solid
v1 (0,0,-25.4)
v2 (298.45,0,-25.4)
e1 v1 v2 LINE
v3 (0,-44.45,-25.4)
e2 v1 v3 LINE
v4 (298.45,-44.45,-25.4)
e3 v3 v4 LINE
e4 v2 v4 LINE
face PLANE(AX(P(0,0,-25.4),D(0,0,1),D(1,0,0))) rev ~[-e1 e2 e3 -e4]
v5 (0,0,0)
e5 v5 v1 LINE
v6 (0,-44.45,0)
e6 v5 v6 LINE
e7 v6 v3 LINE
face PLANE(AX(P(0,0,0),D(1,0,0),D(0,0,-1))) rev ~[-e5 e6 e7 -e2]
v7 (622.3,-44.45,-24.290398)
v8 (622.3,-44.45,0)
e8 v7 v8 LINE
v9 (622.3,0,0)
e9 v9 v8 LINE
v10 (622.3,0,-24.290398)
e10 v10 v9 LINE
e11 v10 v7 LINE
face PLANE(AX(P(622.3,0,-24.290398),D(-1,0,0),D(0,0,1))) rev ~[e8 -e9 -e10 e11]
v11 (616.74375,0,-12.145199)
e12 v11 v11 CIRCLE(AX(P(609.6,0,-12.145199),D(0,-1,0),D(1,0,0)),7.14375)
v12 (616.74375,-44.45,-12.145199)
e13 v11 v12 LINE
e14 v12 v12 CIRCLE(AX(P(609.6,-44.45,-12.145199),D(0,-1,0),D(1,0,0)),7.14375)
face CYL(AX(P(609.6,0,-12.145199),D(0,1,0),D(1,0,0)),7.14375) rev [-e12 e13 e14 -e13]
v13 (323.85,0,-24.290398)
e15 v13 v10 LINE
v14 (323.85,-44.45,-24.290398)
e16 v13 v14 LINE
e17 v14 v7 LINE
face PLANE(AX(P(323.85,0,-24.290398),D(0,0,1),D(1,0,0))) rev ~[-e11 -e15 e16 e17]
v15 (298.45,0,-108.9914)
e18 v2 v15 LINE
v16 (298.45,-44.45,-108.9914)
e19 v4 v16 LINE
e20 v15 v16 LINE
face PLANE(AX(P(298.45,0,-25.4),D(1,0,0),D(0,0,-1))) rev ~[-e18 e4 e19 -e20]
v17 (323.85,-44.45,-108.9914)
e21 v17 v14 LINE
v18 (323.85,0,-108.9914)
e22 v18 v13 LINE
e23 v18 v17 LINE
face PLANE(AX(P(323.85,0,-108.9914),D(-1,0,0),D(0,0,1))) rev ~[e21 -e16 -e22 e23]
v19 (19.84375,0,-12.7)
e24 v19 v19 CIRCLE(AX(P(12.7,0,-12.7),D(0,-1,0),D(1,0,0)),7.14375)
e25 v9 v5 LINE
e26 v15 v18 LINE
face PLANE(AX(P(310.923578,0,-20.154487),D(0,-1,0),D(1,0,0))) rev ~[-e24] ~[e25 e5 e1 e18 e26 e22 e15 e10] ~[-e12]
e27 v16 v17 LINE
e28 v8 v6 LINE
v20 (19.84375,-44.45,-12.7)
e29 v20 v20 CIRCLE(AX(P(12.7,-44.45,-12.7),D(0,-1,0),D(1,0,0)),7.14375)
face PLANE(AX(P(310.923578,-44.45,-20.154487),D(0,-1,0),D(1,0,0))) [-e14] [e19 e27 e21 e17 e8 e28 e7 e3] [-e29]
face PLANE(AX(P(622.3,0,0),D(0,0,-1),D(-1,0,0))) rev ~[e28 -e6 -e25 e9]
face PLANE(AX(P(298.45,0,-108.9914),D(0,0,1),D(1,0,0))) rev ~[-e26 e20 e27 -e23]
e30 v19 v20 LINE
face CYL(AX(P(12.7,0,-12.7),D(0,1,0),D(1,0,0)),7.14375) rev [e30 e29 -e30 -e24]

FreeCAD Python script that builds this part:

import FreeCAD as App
import Part
import Sketcher
Q = App.Units.Quantity

doc = App.newDocument("Part")
params = doc.addObject("Spreadsheet::Sheet", "Params")
for row, (alias, value) in enumerate([
    ("sketch1_width", "1 in"),
    ("sketch1_diameter", "0.5625 in"),
    ("sketch1_width2", "24.5 in"),
    ("sketch1_height", "3.291 in"),
    ("pad1_length", "1.75 in"),
], start=1):
    params.set(f"A{row}", alias)
    params.set(f"B{row}", "=" + value)
    params.setAlias(f"B{row}", alias)

body = doc.addObject("PartDesign::Body", "Body")

# Sketch on XZ plane
sketch1 = body.newObject("Sketcher::SketchObject", "Sketch")
sketch1.AttachmentSupport = (doc.getObject("XZ_Plane"), [""])
sketch1.MapMode = "FlatFace"
sketch1.addGeometry([
    Part.LineSegment(App.Vector(622.3, 0, 0), App.Vector(0, 0, 0)),  # 0
    Part.LineSegment(App.Vector(0, 0, 0), App.Vector(0, -25.4, 0)),  # 1
    Part.LineSegment(App.Vector(0, -25.4, 0), App.Vector(298.45, -25.4, 0)),  # 2
    Part.LineSegment(App.Vector(298.45, -25.4, 0), App.Vector(298.45, -108.9914, 0)),  # 3
    Part.LineSegment(App.Vector(298.45, -108.9914, 0), App.Vector(323.85, -108.9914, 0)),  # 4
    Part.LineSegment(App.Vector(323.85, -108.9914, 0), App.Vector(323.85, -24.290398, 0)),  # 5
    Part.LineSegment(App.Vector(323.85, -24.290398, 0), App.Vector(622.3, -24.290398, 0)),  # 6
    Part.LineSegment(App.Vector(622.3, -24.290398, 0), App.Vector(622.3, 0, 0)),  # 7
    Part.Circle(App.Vector(12.7, -12.7, 0), App.Vector(0, 0, 1), 7.14375),  # 8
    Part.Circle(App.Vector(609.6, -12.145199, 0), App.Vector(0, 0, 1), 7.14375),  # 9
], False)
sketch1.addConstraint([
    Sketcher.Constraint("Coincident", 0, 2, 1, 1),
    Sketcher.Constraint("Coincident", 1, 2, 2, 1),
    Sketcher.Constraint("Coincident", 2, 2, 3, 1),
    Sketcher.Constraint("Coincident", 3, 2, 4, 1),
    Sketcher.Constraint("Coincident", 4, 2, 5, 1),
    Sketcher.Constraint("Coincident", 5, 2, 6, 1),
    Sketcher.Constraint("Coincident", 6, 2, 7, 1),
    Sketcher.Constraint("Coincident", 7, 2, 0, 1),
    Sketcher.Constraint("Horizontal", 0),
    Sketcher.Constraint("Vertical", 1),
    Sketcher.Constraint("Horizontal", 2),
    Sketcher.Constraint("Vertical", 3),
    Sketcher.Constraint("Horizontal", 4),
    Sketcher.Constraint("Vertical", 5),
    Sketcher.Constraint("Horizontal", 6),
    Sketcher.Constraint("Vertical", 7),
    Sketcher.Constraint("Coincident", 0, 2, -1, 1),
    Sketcher.Constraint("Equal", 8, 9),
    Sketcher.Constraint("Equal", 2, 6),
    Sketcher.Constraint("Equal", 4, 1),
    Sketcher.Constraint("DistanceX", 4, 1, 4, 2, Q("1 in")),
    Sketcher.Constraint("Diameter", 8, Q("0.5625 in")),
    Sketcher.Constraint("DistanceX", 0, 2, 0, 1, Q("24.5 in")),
    Sketcher.Constraint("DistanceX", -1, 1, 9, 3, Q("24 in")),
    Sketcher.Constraint("DistanceX", -1, 1, 8, 3, Q("0.5 in")),
    Sketcher.Constraint("DistanceY", 8, 3, -1, 1, Q("0.5 in")),
    Sketcher.Constraint("DistanceY", 3, 2, 3, 1, Q("3.291 in")),
    Sketcher.Constraint("DistanceY", 9, 3, -1, 1, Q("12.145199 mm")),
    Sketcher.Constraint("DistanceY", 2, 2, 5, 2, Q("1.109602 mm")),
])
sketch1.setExpression("Constraints[20]", "Params.sketch1_width")
sketch1.setExpression("Constraints[21]", "Params.sketch1_diameter")
sketch1.setExpression("Constraints[22]", "Params.sketch1_width2")
sketch1.setExpression("Constraints[26]", "Params.sketch1_height")
pad1 = body.newObject("PartDesign::Pad", "Pad")
pad1.Profile = sketch1
pad1.setExpression("Length", "Params.pad1_length")

doc.recompute()
